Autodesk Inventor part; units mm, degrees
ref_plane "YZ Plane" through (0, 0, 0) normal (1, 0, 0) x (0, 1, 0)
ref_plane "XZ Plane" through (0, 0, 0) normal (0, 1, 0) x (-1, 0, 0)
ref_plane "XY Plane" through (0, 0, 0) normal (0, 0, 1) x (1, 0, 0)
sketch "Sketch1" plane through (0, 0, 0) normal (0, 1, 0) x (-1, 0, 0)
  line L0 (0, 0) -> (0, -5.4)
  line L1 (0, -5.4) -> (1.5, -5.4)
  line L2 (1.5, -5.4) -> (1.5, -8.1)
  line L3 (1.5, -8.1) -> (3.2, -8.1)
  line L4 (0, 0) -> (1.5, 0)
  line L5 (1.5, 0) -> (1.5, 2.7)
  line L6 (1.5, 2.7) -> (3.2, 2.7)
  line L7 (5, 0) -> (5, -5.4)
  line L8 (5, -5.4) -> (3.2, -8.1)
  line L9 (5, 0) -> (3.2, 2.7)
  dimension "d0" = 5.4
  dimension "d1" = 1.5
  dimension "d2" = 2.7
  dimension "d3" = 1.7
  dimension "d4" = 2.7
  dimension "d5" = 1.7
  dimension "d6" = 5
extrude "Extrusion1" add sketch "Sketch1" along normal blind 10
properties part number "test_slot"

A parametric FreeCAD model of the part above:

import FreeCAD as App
import Part
import Sketcher

doc = App.newDocument("Part")
body = doc.addObject("PartDesign::Body", "Body")

# Sketch on XZ plane
sketch1 = body.newObject("Sketcher::SketchObject", "Sketch")
sketch1.AttachmentSupport = (doc.getObject("XZ_Plane"), [""])
sketch1.MapMode = "FlatFace"
sketch1.addGeometry([
    Part.LineSegment(App.Vector(-1.5, 0, 0), App.Vector(0, 0, 0)),  # 0
    Part.LineSegment(App.Vector(0, 0, 0), App.Vector(0, -5.4, 0)),  # 1
    Part.LineSegment(App.Vector(0, -5.4, 0), App.Vector(-1.5, -5.4, 0)),  # 2
    Part.LineSegment(App.Vector(-1.5, -5.4, 0), App.Vector(-1.5, -8.1, 0)),  # 3
    Part.LineSegment(App.Vector(-1.5, -8.1, 0), App.Vector(-3.2, -8.1, 0)),  # 4
    Part.LineSegment(App.Vector(-3.2, -8.1, 0), App.Vector(-5, -5.4, 0)),  # 5
    Part.LineSegment(App.Vector(-5, -5.4, 0), App.Vector(-5, 0, 0)),  # 6
    Part.LineSegment(App.Vector(-5, 0, 0), App.Vector(-3.2, 2.7, 0)),  # 7
    Part.LineSegment(App.Vector(-3.2, 2.7, 0), App.Vector(-1.5, 2.7, 0)),  # 8
    Part.LineSegment(App.Vector(-1.5, 2.7, 0), App.Vector(-1.5, 0, 0)),  # 9
], False)
sketch1.addConstraint([
    Sketcher.Constraint("Coincident", 0, 2, 1, 1),
    Sketcher.Constraint("Coincident", 1, 2, 2, 1),
    Sketcher.Constraint("Coincident", 2, 2, 3, 1),
    Sketcher.Constraint("Coincident", 3, 2, 4, 1),
    Sketcher.Constraint("Coincident", 4, 2, 5, 1),
    Sketcher.Constraint("Coincident", 5, 2, 6, 1),
    Sketcher.Constraint("Coincident", 6, 2, 7, 1),
    Sketcher.Constraint("Coincident", 7, 2, 8, 1),
    Sketcher.Constraint("Coincident", 8, 2, 9, 1),
    Sketcher.Constraint("Coincident", 9, 2, 0, 1),
    Sketcher.Constraint("Horizontal", 0),
    Sketcher.Constraint("Vertical", 1),
    Sketcher.Constraint("Horizontal", 2),
    Sketcher.Constraint("Vertical", 3),
    Sketcher.Constraint("Horizontal", 4),
    Sketcher.Constraint("Vertical", 6),
    Sketcher.Constraint("Horizontal", 8),
    Sketcher.Constraint("Vertical", 9),
    Sketcher.Constraint("Coincident", 0, 2, -1, 1),
    Sketcher.Constraint("PointOnObject", 6, 2, -1),
    Sketcher.Constraint("Horizontal", 2, 2, 5, 2),
    Sketcher.Constraint("Vertical", 4, 2, 7, 2),
    Sketcher.Constraint("Vertical", 3, 2, 8, 2),
    Sketcher.Constraint("Equal", 3, 9),
    Sketcher.Constraint("DistanceX", 0, 1, 0, 2, 1.5),
    Sketcher.Constraint("DistanceX", 4, 2, 4, 1, 1.7),
    Sketcher.Constraint("DistanceY", 1, 2, 1, 1, 5.4),
    Sketcher.Constraint("DistanceY", 3, 2, 3, 1, 2.7),
    Sketcher.Constraint("DistanceX", 5, 2, -1, 1, 5.0),
])
pad1 = body.newObject("PartDesign::Pad", "Pad")
pad1.Profile = sketch1
pad1.Length = 10
pad1.Reversed = True

doc.recompute()
